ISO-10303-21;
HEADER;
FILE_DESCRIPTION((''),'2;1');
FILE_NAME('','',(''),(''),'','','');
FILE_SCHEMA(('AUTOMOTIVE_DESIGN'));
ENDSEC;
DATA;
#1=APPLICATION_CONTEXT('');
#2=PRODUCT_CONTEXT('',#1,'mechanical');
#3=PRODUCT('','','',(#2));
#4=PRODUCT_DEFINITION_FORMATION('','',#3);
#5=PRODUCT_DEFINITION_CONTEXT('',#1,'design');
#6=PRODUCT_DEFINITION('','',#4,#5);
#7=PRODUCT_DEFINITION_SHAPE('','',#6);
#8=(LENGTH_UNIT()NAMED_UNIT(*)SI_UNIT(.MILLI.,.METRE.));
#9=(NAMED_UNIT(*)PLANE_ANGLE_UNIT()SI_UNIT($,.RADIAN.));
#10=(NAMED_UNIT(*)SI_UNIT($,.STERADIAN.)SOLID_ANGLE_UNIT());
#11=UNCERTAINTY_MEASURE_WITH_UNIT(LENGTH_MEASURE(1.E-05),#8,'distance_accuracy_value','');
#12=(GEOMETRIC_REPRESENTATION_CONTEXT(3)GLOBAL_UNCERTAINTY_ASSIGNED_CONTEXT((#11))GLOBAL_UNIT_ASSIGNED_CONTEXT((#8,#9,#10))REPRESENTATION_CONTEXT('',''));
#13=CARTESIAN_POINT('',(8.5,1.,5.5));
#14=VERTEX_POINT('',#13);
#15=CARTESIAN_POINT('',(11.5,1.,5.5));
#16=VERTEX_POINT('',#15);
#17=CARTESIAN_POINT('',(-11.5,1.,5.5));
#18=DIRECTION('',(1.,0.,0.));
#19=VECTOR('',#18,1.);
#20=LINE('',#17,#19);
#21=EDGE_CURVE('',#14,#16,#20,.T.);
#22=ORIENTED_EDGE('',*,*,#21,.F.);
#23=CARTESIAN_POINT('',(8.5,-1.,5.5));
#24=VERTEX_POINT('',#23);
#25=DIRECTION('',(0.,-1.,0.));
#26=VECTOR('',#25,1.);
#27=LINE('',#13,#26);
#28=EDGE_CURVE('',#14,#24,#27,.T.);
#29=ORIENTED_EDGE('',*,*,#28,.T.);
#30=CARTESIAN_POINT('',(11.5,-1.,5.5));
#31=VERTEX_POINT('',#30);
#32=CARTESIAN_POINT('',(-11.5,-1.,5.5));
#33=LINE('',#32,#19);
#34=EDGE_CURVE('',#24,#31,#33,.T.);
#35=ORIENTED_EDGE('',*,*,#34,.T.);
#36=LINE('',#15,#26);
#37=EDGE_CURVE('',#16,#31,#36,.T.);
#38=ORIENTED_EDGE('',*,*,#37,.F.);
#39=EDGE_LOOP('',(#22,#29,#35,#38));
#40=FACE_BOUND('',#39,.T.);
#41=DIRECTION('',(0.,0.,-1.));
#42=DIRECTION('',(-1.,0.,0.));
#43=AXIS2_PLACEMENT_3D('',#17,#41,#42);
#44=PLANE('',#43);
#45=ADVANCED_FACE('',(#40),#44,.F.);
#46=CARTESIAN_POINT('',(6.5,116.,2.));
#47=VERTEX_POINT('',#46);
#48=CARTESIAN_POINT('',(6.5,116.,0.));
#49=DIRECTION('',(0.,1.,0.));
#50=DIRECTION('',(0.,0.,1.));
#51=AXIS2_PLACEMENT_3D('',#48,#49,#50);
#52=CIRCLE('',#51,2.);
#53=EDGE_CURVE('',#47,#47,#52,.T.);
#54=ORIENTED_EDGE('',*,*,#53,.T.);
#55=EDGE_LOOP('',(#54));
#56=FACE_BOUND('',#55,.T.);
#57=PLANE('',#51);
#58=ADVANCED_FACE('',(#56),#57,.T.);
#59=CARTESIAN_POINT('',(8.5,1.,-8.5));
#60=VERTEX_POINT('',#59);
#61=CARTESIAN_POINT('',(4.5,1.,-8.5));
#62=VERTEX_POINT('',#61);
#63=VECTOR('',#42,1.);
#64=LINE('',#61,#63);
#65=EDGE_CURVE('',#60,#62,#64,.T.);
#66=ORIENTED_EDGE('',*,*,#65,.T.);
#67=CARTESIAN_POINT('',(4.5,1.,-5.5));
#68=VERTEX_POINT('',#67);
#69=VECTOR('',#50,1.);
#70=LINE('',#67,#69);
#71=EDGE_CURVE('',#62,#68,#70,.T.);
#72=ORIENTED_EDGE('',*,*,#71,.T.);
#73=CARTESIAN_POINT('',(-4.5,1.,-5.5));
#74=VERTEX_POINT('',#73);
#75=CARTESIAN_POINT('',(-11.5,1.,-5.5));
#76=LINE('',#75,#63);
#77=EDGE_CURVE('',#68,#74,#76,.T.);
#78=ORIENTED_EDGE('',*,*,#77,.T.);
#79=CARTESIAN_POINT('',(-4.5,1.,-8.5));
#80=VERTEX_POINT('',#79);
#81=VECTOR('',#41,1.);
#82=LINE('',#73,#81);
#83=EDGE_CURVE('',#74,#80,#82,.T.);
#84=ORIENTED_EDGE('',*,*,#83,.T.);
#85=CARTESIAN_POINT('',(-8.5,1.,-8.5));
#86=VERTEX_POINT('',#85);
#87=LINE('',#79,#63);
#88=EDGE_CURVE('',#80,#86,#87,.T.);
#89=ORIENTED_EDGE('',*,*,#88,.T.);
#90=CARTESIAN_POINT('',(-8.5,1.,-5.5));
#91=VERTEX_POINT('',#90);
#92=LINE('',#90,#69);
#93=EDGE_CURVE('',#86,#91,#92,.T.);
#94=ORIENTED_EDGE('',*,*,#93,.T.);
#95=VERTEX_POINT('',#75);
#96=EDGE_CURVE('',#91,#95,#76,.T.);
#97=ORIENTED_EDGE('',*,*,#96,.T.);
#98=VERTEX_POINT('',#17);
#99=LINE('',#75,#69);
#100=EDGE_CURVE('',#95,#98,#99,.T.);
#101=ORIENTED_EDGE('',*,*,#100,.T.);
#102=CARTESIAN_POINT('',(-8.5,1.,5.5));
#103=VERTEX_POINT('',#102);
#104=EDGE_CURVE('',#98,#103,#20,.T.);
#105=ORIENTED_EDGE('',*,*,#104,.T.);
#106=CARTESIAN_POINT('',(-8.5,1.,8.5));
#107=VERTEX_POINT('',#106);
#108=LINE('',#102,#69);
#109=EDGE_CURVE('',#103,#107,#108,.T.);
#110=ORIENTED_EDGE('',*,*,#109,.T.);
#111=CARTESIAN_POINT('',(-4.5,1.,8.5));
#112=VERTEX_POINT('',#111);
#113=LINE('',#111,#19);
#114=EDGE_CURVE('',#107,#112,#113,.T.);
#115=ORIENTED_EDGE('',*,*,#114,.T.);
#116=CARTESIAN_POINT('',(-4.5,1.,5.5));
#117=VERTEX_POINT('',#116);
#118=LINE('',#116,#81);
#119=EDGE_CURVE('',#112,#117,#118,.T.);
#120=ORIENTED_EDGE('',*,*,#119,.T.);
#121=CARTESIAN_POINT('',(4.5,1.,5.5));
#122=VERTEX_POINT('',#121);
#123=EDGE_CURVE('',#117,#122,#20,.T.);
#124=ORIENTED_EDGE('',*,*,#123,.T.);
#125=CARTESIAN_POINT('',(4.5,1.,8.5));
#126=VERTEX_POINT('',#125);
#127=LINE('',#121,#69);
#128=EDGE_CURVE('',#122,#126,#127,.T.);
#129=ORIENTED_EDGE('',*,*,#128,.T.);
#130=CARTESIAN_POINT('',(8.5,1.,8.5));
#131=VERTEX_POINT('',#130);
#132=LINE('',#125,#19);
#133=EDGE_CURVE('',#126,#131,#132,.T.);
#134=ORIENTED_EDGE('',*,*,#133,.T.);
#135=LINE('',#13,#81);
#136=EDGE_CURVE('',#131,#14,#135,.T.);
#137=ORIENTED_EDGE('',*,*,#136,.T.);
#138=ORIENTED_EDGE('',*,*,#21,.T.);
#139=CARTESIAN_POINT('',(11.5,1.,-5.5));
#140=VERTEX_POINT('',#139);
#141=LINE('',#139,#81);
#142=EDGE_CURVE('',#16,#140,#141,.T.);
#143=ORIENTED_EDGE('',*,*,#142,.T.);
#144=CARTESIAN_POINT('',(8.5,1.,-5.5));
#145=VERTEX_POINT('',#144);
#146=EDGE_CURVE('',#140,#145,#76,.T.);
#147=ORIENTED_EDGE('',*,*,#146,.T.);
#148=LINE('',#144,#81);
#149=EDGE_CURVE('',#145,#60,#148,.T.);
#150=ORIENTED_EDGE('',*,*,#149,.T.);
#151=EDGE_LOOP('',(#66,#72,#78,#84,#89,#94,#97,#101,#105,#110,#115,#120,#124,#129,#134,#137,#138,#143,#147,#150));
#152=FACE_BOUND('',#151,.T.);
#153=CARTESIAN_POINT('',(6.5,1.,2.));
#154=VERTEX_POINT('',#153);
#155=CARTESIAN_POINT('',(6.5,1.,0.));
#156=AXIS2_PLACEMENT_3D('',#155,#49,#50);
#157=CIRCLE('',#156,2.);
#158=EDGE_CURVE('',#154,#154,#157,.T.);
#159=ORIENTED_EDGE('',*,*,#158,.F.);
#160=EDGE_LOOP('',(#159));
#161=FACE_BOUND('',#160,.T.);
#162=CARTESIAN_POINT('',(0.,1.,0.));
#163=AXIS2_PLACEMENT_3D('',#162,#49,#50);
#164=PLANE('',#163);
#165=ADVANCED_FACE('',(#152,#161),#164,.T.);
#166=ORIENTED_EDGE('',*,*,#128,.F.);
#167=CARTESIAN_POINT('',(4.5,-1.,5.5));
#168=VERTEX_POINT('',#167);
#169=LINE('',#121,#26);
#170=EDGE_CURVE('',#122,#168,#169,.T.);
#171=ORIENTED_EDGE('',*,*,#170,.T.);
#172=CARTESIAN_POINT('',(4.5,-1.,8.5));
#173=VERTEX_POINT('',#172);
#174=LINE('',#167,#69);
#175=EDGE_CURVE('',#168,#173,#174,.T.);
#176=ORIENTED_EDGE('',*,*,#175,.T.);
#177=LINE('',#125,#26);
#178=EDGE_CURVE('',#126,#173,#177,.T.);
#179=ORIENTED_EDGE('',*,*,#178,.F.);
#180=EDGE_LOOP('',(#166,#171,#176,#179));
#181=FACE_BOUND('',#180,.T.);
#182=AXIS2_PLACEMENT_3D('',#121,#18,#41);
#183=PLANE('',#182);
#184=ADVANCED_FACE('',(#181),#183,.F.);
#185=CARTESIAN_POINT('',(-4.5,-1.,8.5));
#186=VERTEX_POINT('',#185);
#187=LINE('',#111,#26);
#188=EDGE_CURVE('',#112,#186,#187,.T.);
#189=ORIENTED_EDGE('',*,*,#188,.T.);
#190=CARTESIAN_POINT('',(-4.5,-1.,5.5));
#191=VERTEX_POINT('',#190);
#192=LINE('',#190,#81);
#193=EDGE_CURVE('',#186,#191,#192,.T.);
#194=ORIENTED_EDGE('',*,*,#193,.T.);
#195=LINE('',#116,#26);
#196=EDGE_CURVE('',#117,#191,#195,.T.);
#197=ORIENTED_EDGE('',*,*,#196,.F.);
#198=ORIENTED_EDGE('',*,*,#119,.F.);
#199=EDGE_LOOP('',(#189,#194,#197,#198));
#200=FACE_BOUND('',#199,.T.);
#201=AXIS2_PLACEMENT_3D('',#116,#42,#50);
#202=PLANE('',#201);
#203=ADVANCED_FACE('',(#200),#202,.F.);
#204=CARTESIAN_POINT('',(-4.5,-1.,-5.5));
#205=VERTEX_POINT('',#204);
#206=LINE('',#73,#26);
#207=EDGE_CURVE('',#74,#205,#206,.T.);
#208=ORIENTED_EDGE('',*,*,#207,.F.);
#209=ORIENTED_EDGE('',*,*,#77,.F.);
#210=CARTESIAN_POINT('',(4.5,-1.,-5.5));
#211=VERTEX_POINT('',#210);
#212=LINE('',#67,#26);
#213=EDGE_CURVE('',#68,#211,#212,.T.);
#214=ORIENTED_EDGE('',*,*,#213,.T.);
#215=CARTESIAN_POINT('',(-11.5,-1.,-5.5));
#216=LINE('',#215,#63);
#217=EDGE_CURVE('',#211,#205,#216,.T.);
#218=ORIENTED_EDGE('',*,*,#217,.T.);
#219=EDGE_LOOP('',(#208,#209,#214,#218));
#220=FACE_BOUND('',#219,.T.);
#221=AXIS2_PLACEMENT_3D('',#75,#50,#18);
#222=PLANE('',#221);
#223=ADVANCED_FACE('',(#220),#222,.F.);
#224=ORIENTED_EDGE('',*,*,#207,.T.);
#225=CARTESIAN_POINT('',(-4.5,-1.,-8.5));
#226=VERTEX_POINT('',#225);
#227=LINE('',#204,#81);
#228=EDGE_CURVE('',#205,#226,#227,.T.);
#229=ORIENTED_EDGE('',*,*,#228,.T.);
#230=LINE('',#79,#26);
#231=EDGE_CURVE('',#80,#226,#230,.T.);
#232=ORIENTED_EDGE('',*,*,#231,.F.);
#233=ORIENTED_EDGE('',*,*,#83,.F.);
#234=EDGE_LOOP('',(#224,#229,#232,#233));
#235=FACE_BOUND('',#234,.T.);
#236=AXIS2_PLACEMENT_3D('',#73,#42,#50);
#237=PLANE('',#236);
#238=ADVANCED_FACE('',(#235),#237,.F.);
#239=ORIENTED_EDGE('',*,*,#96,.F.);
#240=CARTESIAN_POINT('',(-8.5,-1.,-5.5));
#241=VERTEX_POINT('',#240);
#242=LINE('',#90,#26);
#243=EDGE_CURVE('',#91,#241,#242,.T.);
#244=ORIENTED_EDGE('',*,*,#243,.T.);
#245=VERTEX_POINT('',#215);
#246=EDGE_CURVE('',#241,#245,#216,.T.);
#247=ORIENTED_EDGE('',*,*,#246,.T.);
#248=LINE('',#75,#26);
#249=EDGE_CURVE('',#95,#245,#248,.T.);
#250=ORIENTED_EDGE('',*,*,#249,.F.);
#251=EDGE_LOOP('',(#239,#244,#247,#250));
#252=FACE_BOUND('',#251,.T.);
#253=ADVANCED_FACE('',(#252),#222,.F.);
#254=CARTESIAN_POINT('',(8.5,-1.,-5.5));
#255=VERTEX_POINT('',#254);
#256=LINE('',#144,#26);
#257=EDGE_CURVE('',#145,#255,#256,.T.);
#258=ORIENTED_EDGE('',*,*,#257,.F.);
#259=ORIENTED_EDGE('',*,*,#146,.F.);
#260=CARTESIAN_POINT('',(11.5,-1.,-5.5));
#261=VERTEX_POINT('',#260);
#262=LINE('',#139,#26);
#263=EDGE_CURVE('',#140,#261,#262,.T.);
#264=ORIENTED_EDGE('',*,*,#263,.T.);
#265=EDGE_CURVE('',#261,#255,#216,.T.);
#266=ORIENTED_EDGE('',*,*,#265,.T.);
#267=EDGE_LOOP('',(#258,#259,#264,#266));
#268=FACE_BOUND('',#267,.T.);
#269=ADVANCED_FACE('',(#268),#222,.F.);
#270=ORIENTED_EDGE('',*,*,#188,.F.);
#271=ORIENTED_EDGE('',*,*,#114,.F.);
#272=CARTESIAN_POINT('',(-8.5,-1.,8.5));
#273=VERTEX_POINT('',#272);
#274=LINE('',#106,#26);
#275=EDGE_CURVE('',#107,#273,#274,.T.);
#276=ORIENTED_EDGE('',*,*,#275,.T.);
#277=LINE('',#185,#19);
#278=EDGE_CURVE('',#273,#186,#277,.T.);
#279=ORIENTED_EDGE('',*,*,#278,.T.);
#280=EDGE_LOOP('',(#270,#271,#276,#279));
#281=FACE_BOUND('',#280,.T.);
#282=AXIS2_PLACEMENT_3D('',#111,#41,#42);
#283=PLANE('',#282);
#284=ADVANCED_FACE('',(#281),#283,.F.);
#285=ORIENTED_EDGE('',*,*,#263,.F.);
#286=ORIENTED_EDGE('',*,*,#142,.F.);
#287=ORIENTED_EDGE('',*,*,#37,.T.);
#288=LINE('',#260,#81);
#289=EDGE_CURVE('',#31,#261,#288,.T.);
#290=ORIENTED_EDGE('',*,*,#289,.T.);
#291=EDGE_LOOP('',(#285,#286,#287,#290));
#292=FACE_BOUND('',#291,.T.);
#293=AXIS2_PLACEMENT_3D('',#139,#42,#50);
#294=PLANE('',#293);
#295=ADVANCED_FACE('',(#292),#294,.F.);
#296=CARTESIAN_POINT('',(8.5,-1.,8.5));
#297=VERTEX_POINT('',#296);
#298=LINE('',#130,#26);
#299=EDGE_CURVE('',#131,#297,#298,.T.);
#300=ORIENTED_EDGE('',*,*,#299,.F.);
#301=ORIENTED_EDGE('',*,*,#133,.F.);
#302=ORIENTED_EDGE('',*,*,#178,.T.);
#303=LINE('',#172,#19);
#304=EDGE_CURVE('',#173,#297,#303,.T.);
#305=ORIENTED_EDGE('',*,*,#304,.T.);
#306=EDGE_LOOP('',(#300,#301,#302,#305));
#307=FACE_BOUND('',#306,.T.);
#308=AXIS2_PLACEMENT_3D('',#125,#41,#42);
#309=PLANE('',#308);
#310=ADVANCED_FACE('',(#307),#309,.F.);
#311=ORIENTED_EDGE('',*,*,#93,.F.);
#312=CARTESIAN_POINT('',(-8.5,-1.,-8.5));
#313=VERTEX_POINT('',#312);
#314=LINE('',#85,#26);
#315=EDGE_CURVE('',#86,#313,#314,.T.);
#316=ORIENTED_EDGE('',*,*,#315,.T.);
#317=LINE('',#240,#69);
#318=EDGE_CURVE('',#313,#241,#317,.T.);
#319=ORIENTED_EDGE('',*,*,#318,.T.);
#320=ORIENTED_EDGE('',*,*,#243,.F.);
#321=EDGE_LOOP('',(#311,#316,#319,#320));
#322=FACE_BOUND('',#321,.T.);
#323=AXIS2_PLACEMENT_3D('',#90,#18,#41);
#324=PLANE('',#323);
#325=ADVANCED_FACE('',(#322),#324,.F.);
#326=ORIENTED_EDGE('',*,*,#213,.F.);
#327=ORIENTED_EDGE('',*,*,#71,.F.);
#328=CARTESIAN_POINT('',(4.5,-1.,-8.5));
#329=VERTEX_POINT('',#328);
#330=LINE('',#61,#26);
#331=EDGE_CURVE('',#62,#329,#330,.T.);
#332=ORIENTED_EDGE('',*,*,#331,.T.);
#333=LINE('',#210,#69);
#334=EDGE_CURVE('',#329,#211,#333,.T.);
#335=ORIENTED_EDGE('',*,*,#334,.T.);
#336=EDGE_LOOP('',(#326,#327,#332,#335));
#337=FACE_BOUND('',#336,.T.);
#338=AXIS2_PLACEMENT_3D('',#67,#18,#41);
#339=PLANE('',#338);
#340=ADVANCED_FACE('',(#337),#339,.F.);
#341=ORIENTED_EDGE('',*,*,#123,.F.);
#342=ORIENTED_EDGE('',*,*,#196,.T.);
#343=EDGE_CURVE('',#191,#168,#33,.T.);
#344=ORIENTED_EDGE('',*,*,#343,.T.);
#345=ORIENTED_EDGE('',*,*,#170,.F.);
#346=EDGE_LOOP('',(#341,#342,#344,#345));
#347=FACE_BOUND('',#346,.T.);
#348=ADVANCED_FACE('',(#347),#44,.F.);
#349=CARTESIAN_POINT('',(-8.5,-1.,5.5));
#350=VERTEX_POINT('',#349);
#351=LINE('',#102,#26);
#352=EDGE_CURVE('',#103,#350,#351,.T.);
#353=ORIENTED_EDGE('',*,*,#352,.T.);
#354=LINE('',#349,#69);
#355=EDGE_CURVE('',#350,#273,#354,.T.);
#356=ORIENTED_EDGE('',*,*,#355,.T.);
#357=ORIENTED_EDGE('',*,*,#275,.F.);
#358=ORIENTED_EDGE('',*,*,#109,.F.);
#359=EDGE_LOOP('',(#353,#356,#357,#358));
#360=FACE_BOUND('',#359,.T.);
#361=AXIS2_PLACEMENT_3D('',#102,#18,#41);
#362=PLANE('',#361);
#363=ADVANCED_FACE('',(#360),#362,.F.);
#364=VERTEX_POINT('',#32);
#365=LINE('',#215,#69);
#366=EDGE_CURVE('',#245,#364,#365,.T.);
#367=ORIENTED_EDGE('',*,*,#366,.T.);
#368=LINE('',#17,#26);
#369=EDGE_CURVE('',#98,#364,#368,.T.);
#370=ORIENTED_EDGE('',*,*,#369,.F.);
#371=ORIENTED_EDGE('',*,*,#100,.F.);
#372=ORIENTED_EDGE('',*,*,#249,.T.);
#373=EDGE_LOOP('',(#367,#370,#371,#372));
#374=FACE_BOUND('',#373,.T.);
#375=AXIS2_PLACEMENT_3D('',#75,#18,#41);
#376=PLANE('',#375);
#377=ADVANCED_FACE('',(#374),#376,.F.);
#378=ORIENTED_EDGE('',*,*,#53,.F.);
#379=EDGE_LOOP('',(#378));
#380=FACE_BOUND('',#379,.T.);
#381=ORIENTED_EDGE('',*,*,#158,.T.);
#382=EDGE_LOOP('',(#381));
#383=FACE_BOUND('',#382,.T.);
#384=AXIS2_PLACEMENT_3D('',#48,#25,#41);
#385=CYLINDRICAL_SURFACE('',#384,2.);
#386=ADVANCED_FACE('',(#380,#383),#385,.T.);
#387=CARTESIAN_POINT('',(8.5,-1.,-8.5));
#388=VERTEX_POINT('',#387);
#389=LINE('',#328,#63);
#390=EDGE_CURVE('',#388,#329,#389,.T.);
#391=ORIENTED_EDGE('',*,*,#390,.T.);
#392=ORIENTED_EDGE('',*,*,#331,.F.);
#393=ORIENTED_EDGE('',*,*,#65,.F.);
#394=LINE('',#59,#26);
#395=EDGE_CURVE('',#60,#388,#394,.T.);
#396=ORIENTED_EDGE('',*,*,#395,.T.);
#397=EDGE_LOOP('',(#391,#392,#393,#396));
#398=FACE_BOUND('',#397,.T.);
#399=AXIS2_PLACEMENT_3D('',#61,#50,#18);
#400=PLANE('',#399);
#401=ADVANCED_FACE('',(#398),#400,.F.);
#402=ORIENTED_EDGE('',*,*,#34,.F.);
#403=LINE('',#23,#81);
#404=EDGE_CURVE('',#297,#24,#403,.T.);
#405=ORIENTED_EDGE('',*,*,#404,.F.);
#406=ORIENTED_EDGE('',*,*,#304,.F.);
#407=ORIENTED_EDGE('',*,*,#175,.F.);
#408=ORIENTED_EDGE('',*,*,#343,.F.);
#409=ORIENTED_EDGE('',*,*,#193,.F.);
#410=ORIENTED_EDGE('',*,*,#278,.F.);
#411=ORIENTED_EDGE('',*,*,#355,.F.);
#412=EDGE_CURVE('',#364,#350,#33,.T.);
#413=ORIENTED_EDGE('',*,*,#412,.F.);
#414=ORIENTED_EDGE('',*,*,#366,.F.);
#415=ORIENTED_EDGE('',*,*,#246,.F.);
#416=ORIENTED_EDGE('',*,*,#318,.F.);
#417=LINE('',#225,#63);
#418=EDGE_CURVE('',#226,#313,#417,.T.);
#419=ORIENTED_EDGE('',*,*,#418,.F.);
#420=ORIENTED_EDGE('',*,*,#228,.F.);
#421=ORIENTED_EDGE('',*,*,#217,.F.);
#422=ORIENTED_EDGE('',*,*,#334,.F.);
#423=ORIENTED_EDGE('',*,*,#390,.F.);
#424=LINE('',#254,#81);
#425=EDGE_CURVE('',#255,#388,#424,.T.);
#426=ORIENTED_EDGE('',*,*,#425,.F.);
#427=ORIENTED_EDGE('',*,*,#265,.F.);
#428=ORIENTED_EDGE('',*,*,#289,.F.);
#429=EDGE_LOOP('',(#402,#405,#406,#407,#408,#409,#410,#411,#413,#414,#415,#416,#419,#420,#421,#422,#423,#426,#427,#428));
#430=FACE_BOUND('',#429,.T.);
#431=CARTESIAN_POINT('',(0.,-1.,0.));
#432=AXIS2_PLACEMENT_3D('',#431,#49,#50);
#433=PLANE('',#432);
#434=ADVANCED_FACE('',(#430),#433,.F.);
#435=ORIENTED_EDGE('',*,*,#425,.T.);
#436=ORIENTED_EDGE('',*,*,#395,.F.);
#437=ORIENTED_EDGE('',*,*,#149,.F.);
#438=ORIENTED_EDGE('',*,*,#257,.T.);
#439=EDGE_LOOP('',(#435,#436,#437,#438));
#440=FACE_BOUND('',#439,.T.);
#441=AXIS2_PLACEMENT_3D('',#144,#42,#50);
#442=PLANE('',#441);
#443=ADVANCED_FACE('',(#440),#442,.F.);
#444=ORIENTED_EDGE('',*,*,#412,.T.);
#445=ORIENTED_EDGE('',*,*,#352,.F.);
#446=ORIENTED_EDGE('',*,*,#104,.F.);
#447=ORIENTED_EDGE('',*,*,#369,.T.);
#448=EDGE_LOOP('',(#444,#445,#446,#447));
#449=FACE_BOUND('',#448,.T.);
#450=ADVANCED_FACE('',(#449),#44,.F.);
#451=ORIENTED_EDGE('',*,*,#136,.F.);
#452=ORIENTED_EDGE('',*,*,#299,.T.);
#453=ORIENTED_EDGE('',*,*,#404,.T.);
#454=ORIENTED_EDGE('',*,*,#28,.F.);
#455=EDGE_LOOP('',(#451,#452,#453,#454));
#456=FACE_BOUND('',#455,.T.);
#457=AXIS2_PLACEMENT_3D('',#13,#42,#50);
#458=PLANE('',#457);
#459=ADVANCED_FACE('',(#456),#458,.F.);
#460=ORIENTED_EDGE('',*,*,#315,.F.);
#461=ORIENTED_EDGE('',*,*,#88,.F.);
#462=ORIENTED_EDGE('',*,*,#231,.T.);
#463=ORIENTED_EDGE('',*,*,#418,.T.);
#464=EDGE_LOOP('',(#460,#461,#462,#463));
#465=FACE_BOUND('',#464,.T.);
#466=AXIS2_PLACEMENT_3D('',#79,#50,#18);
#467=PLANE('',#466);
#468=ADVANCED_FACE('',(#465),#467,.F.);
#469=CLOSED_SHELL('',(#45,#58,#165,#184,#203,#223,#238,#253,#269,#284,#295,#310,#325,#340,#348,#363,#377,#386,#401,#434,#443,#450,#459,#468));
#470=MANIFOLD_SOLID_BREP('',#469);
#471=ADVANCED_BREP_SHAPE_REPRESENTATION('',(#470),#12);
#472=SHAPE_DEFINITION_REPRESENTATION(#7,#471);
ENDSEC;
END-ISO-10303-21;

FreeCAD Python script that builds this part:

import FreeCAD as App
import Part
import Sketcher


def add_polygon(sketch, points):
    """Adds a closed chain of lines whose ends are joined by coincident constraints."""
    first, n = sketch.GeometryCount, len(points)
    for a, b in zip(points, points[1:] + points[:1]):
        sketch.addGeometry(Part.LineSegment(App.Vector(*a, 0), App.Vector(*b, 0)), False)
    for i in range(n):
        sketch.addConstraint(Sketcher.Constraint("Coincident", first + i, 2, first + (i + 1) % n, 1))

doc = App.newDocument("Part")
body = doc.addObject("PartDesign::Body", "Body")

# Sketch on XZ plane
sketch1 = body.newObject("Sketcher::SketchObject", "Sketch")
sketch1.AttachmentSupport = (doc.getObject("XZ_Plane"), [""])
sketch1.MapMode = "FlatFace"
add_polygon(sketch1, [(-12, -6), (-12, 6), (12, 6), (12, -6)])  # lines 0-3
sketch1.addConstraint([
    Sketcher.Constraint("Vertical", 0),
    Sketcher.Constraint("Horizontal", 1),
    Sketcher.Constraint("Vertical", 2),
    Sketcher.Constraint("Horizontal", 3),
    Sketcher.Constraint("Symmetric", 0, 2, 2, 2, -1, 1),
    Sketcher.Constraint("DistanceX", 1, 1, 1, 2, 23.0),
    Sketcher.Constraint("DistanceY", 0, 1, 0, 2, 11.0),
])
pad1 = body.newObject("PartDesign::Pad", "Pad")
pad1.Profile = sketch1
pad1.Length = 2
pad1.Midplane = True

# Sketch on XZ plane
sketch2 = body.newObject("Sketcher::SketchObject", "Sketch001")
sketch2.AttachmentSupport = (doc.getObject("XZ_Plane"), [""])
sketch2.MapMode = "FlatFace"
add_polygon(sketch2, [(4.5, -8.5), (4.5, -5.5), (8.5, -5.5), (8.5, -8.5)])  # lines 0-3
add_polygon(sketch2, [(4.5, 5.5), (4.5, 8.5), (8.5, 8.5), (8.5, 5.5)])  # lines 4-7
add_polygon(sketch2, [(-8.5, 5.5), (-8.5, 8.5), (-4.5, 8.5), (-4.5, 5.5)])  # lines 8-11
add_polygon(sketch2, [(-8.5, -8.5), (-8.5, -5.5), (-4.5, -5.5), (-4.5, -8.5)])  # lines 12-15
sketch2.addConstraint([
    Sketcher.Constraint("Vertical", 0),
    Sketcher.Constraint("Horizontal", 1),
    Sketcher.Constraint("Vertical", 2),
    Sketcher.Constraint("Horizontal", 3),
    Sketcher.Constraint("Vertical", 4),
    Sketcher.Constraint("Horizontal", 5),
    Sketcher.Constraint("Vertical", 6),
    Sketcher.Constraint("Horizontal", 7),
    Sketcher.Constraint("Vertical", 8),
    Sketcher.Constraint("Horizontal", 9),
    Sketcher.Constraint("Vertical", 10),
    Sketcher.Constraint("Horizontal", 11),
    Sketcher.Constraint("Vertical", 12),
    Sketcher.Constraint("Horizontal", 13),
    Sketcher.Constraint("Vertical", 14),
    Sketcher.Constraint("Horizontal", 15),
    Sketcher.Constraint("Symmetric", 2, 2, 8, 2, -1, 1),
    Sketcher.Constraint("Symmetric", 0, 2, 10, 2, -1, 1),
    Sketcher.Constraint("Symmetric", 6, 2, 12, 2, -1, 1),
    Sketcher.Constraint("Symmetric", 4, 2, 14, 2, -1, 1),
    Sketcher.Constraint("Symmetric", 5, 2, 8, 2, -2),
    Sketcher.Constraint("Symmetric", 7, 2, 10, 2, -2),
    Sketcher.Constraint("DistanceX", 1, 1, 1, 2, 4.0),
    Sketcher.Constraint("DistanceY", 0, 1, 0, 2, 3.0),
    Sketcher.Constraint("DistanceY", 0, 2, 4, 2, 14.0),
    Sketcher.Constraint("DistanceX", 8, 2, 4, 2, 13.0),
])
pad2 = body.newObject("PartDesign::Pad", "Pad001")
pad2.Profile = sketch2
pad2.Length = 2
pad2.Midplane = True

# Sketch on XZ plane
sketch3 = body.newObject("Sketcher::SketchObject", "Sketch002")
sketch3.AttachmentSupport = (doc.getObject("XZ_Plane"), [""])
sketch3.MapMode = "FlatFace"
sketch3.AttachmentOffset = App.Placement(App.Vector(0, 0, -1), App.Rotation())
sketch3.addGeometry(Part.Circle(App.Vector(6.5, 0, 0), App.Vector(0, 0, 1), 2), False)
sketch3.addConstraint([
    Sketcher.Constraint("PointOnObject", 0, 3, -1),
    Sketcher.Constraint("Diameter", 0, 4.0),
    Sketcher.Constraint("DistanceX", -1, 1, 0, 3, 6.5),
])
pad3 = body.newObject("PartDesign::Pad", "Pad002")
pad3.Profile = sketch3
pad3.Length = 115
pad3.Reversed = True

doc.recompute()
